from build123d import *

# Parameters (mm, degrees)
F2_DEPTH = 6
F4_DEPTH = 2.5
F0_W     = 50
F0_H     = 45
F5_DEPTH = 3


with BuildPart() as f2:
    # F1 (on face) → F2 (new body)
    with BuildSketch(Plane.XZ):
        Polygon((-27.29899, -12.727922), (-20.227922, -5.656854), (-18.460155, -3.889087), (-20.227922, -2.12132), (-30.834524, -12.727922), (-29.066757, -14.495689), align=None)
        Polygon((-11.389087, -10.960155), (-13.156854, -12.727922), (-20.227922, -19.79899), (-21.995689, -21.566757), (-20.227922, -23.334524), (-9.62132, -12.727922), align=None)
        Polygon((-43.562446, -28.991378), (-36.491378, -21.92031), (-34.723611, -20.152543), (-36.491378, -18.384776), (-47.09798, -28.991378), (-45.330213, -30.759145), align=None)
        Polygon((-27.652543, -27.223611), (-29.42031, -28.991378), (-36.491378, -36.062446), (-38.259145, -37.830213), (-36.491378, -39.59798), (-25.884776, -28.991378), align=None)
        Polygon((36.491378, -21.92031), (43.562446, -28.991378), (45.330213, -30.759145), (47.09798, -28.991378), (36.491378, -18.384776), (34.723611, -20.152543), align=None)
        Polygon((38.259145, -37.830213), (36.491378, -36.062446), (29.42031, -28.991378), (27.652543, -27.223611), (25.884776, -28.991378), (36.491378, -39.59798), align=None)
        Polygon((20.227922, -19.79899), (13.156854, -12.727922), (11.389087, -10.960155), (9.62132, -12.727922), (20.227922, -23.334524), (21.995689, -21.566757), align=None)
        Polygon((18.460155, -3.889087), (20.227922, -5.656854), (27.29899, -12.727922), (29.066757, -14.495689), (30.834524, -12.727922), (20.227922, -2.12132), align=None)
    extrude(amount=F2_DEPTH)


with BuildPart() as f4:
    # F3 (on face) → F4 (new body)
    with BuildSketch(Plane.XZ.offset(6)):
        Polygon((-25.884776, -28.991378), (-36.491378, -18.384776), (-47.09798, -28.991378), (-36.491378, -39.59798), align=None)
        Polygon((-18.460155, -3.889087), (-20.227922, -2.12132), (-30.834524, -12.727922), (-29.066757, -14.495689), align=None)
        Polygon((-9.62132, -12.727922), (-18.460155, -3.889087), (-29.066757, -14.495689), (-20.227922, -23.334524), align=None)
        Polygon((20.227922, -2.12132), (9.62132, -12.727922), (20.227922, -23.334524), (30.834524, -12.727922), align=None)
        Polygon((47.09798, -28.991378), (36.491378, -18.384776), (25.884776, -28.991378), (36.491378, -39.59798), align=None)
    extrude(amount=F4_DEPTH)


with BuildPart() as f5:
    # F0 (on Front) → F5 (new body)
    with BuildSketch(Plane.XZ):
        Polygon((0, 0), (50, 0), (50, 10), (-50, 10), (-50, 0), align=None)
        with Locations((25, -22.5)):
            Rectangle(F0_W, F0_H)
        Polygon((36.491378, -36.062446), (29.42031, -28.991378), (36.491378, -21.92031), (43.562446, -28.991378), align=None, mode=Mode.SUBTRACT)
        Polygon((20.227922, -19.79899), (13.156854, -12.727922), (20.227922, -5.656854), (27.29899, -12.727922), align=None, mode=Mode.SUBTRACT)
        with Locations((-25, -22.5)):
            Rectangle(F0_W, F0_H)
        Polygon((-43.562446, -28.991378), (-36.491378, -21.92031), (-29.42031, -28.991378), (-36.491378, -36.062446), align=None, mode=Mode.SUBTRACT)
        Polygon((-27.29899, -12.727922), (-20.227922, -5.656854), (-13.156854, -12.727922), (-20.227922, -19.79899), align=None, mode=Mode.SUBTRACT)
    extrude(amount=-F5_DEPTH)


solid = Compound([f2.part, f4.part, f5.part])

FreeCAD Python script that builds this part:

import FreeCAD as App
import Part
import Sketcher

doc = App.newDocument("Part")
params = doc.addObject("Spreadsheet::Sheet", "Params")
for row, (alias, value) in enumerate([
    ("sketch1_length", "15 mm"),
    ("sketch1_length2", "2.5 mm"),
    ("pad1_length", "6 mm"),
    ("sketch2_length", "15 mm"),
    ("pad2_length", "2.5 mm"),
    ("sketch3_width", "100 mm"),
    ("sketch3_height", "55 mm"),
    ("sketch3_length", "10 mm"),
    ("pad3_length", "3 mm"),
], start=1):
    params.set(f"A{row}", alias)
    params.set(f"B{row}", "=" + value)
    params.setAlias(f"B{row}", alias)

body = doc.addObject("PartDesign::Body", "Body")
body.AllowCompound = True

sketch1 = body.newObject("Sketcher::SketchObject", "Sketch")
sketch1.AttachmentSupport = (doc.getObject("XZ_Plane"), [""])
sketch1.MapMode = "FlatFace"
sketch1.addGeometry(Part.LineSegment(App.Vector(-18.5, -3.9, 0), App.Vector(-20.2, -2.1, 0)), False)
sketch1.addGeometry(Part.LineSegment(App.Vector(-20.2, -2.1, 0), App.Vector(-30.8, -12.7, 0)), False)
sketch1.addGeometry(Part.LineSegment(App.Vector(-30.8, -12.7, 0), App.Vector(-29.1, -14.5, 0)), False)
sketch1.addGeometry(Part.LineSegment(App.Vector(-29.1, -14.5, 0), App.Vector(-18.5, -3.9, 0)), False)
sketch1.addGeometry(Part.LineSegment(App.Vector(-11.4, -11, 0), App.Vector(-22, -21.6, 0)), False)
sketch1.addGeometry(Part.LineSegment(App.Vector(-22, -21.6, 0), App.Vector(-20.2, -23.3, 0)), False)
sketch1.addGeometry(Part.LineSegment(App.Vector(-20.2, -23.3, 0), App.Vector(-9.6, -12.7, 0)), False)
sketch1.addGeometry(Part.LineSegment(App.Vector(-9.6, -12.7, 0), App.Vector(-11.4, -11, 0)), False)
sketch1.addGeometry(Part.LineSegment(App.Vector(-34.7, -20.2, 0), App.Vector(-36.5, -18.4, 0)), False)
sketch1.addGeometry(Part.LineSegment(App.Vector(-36.5, -18.4, 0), App.Vector(-47.1, -29, 0)), False)
sketch1.addGeometry(Part.LineSegment(App.Vector(-47.1, -29, 0), App.Vector(-45.3, -30.8, 0)), False)
sketch1.addGeometry(Part.LineSegment(App.Vector(-45.3, -30.8, 0), App.Vector(-34.7, -20.2, 0)), False)
sketch1.addGeometry(Part.LineSegment(App.Vector(-27.7, -27.2, 0), App.Vector(-38.3, -37.8, 0)), False)
sketch1.addGeometry(Part.LineSegment(App.Vector(-38.3, -37.8, 0), App.Vector(-36.5, -39.6, 0)), False)
sketch1.addGeometry(Part.LineSegment(App.Vector(-36.5, -39.6, 0), App.Vector(-25.9, -29, 0)), False)
sketch1.addGeometry(Part.LineSegment(App.Vector(-25.9, -29, 0), App.Vector(-27.7, -27.2, 0)), False)
sketch1.addGeometry(Part.LineSegment(App.Vector(45.3, -30.8, 0), App.Vector(47.1, -29, 0)), False)
sketch1.addGeometry(Part.LineSegment(App.Vector(47.1, -29, 0), App.Vector(36.5, -18.4, 0)), False)
sketch1.addGeometry(Part.LineSegment(App.Vector(36.5, -18.4, 0), App.Vector(34.7, -20.2, 0)), False)
sketch1.addGeometry(Part.LineSegment(App.Vector(34.7, -20.2, 0), App.Vector(45.3, -30.8, 0)), False)
sketch1.addGeometry(Part.LineSegment(App.Vector(38.3, -37.8, 0), App.Vector(27.7, -27.2, 0)), False)
sketch1.addGeometry(Part.LineSegment(App.Vector(27.7, -27.2, 0), App.Vector(25.9, -29, 0)), False)
sketch1.addGeometry(Part.LineSegment(App.Vector(25.9, -29, 0), App.Vector(36.5, -39.6, 0)), False)
sketch1.addGeometry(Part.LineSegment(App.Vector(36.5, -39.6, 0), App.Vector(38.3, -37.8, 0)), False)
sketch1.addGeometry(Part.LineSegment(App.Vector(11.4, -11, 0), App.Vector(9.6, -12.7, 0)), False)
sketch1.addGeometry(Part.LineSegment(App.Vector(9.6, -12.7, 0), App.Vector(20.2, -23.3, 0)), False)
sketch1.addGeometry(Part.LineSegment(App.Vector(20.2, -23.3, 0), App.Vector(22, -21.6, 0)), False)
sketch1.addGeometry(Part.LineSegment(App.Vector(22, -21.6, 0), App.Vector(11.4, -11, 0)), False)
sketch1.addGeometry(Part.LineSegment(App.Vector(18.5, -3.9, 0), App.Vector(29.1, -14.5, 0)), False)
sketch1.addGeometry(Part.LineSegment(App.Vector(29.1, -14.5, 0), App.Vector(30.8, -12.7, 0)), False)
sketch1.addGeometry(Part.LineSegment(App.Vector(30.8, -12.7, 0), App.Vector(20.2, -2.1, 0)), False)
sketch1.addGeometry(Part.LineSegment(App.Vector(20.2, -2.1, 0), App.Vector(18.5, -3.9, 0)), False)
sketch1.addConstraint(Sketcher.Constraint("Coincident", 0, 2, 1, 1))
sketch1.addConstraint(Sketcher.Constraint("Coincident", 1, 2, 2, 1))
sketch1.addConstraint(Sketcher.Constraint("Coincident", 2, 2, 3, 1))
sketch1.addConstraint(Sketcher.Constraint("Coincident", 3, 2, 0, 1))
sketch1.addConstraint(Sketcher.Constraint("Coincident", 4, 2, 5, 1))
sketch1.addConstraint(Sketcher.Constraint("Coincident", 5, 2, 6, 1))
sketch1.addConstraint(Sketcher.Constraint("Coincident", 6, 2, 7, 1))
sketch1.addConstraint(Sketcher.Constraint("Coincident", 7, 2, 4, 1))
sketch1.addConstraint(Sketcher.Constraint("Coincident", 8, 2, 9, 1))
sketch1.addConstraint(Sketcher.Constraint("Coincident", 9, 2, 10, 1))
sketch1.addConstraint(Sketcher.Constraint("Coincident", 10, 2, 11, 1))
sketch1.addConstraint(Sketcher.Constraint("Coincident", 11, 2, 8, 1))
sketch1.addConstraint(Sketcher.Constraint("Coincident", 12, 2, 13, 1))
sketch1.addConstraint(Sketcher.Constraint("Coincident", 13, 2, 14, 1))
sketch1.addConstraint(Sketcher.Constraint("Coincident", 14, 2, 15, 1))
sketch1.addConstraint(Sketcher.Constraint("Coincident", 15, 2, 12, 1))
sketch1.addConstraint(Sketcher.Constraint("Coincident", 16, 2, 17, 1))
sketch1.addConstraint(Sketcher.Constraint("Coincident", 17, 2, 18, 1))
sketch1.addConstraint(Sketcher.Constraint("Coincident", 18, 2, 19, 1))
sketch1.addConstraint(Sketcher.Constraint("Coincident", 19, 2, 16, 1))
sketch1.addConstraint(Sketcher.Constraint("Coincident", 20, 2, 21, 1))
sketch1.addConstraint(Sketcher.Constraint("Coincident", 21, 2, 22, 1))
sketch1.addConstraint(Sketcher.Constraint("Coincident", 22, 2, 23, 1))
sketch1.addConstraint(Sketcher.Constraint("Coincident", 23, 2, 20, 1))
sketch1.addConstraint(Sketcher.Constraint("Coincident", 24, 2, 25, 1))
sketch1.addConstraint(Sketcher.Constraint("Coincident", 25, 2, 26, 1))
sketch1.addConstraint(Sketcher.Constraint("Coincident", 26, 2, 27, 1))
sketch1.addConstraint(Sketcher.Constraint("Coincident", 27, 2, 24, 1))
sketch1.addConstraint(Sketcher.Constraint("Coincident", 28, 2, 29, 1))
sketch1.addConstraint(Sketcher.Constraint("Coincident", 29, 2, 30, 1))
sketch1.addConstraint(Sketcher.Constraint("Coincident", 30, 2, 31, 1))
sketch1.addConstraint(Sketcher.Constraint("Coincident", 31, 2, 28, 1))
sketch1.addConstraint(Sketcher.Constraint("Symmetric", 9, 2, 16, 2, -2))
sketch1.addConstraint(Sketcher.Constraint("Symmetric", 8, 2, 17, 2, -2))
sketch1.addConstraint(Sketcher.Constraint("Symmetric", 11, 2, 18, 2, -2))
sketch1.addConstraint(Sketcher.Constraint("Symmetric", 10, 2, 19, 2, -2))
sketch1.addConstraint(Sketcher.Constraint("Symmetric", 15, 2, 20, 2, -2))
sketch1.addConstraint(Sketcher.Constraint("Symmetric", 14, 2, 21, 2, -2))
sketch1.addConstraint(Sketcher.Constraint("Symmetric", 13, 2, 22, 2, -2))
sketch1.addConstraint(Sketcher.Constraint("Symmetric", 12, 2, 23, 2, -2))
sketch1.addConstraint(Sketcher.Constraint("Symmetric", 6, 2, 24, 2, -2))
sketch1.addConstraint(Sketcher.Constraint("Symmetric", 5, 2, 25, 2, -2))
sketch1.addConstraint(Sketcher.Constraint("Symmetric", 4, 2, 26, 2, -2))
sketch1.addConstraint(Sketcher.Constraint("Symmetric", 7, 2, 27, 2, -2))
sketch1.addConstraint(Sketcher.Constraint("Symmetric", 2, 2, 28, 2, -2))
sketch1.addConstraint(Sketcher.Constraint("Symmetric", 1, 2, 29, 2, -2))
sketch1.addConstraint(Sketcher.Constraint("Symmetric", 0, 2, 30, 2, -2))
sketch1.addConstraint(Sketcher.Constraint("Symmetric", 3, 2, 31, 2, -2))
sketch1.addConstraint(Sketcher.Constraint("Perpendicular", 0, 1))
sketch1.addConstraint(Sketcher.Constraint("Perpendicular", 1, 2))
sketch1.addConstraint(Sketcher.Constraint("Perpendicular", 2, 3))
sketch1.addConstraint(Sketcher.Constraint("Parallel", 3, 4))
sketch1.addConstraint(Sketcher.Constraint("Perpendicular", 4, 5))
sketch1.addConstraint(Sketcher.Constraint("Perpendicular", 5, 6))
sketch1.addConstraint(Sketcher.Constraint("Perpendicular", 6, 7))
sketch1.addConstraint(Sketcher.Constraint("Parallel", 7, 8))
sketch1.addConstraint(Sketcher.Constraint("Perpendicular", 8, 9))
sketch1.addConstraint(Sketcher.Constraint("Perpendicular", 9, 10))
sketch1.addConstraint(Sketcher.Constraint("Perpendicular", 10, 11))
sketch1.addConstraint(Sketcher.Constraint("Parallel", 11, 12))
sketch1.addConstraint(Sketcher.Constraint("Perpendicular", 12, 13))
sketch1.addConstraint(Sketcher.Constraint("Perpendicular", 13, 14))
sketch1.addConstraint(Sketcher.Constraint("Perpendicular", 14, 15))
sketch1.addConstraint(Sketcher.Constraint("Perpendicular", 15, 16))
sketch1.addConstraint(Sketcher.Constraint("Horizontal", 1, 2, 6, 2))
sketch1.addConstraint(Sketcher.Constraint("Horizontal", 9, 2, 14, 2))
sketch1.addConstraint(Sketcher.Constraint("Vertical", 0, 2, 5, 2))
sketch1.addConstraint(Sketcher.Constraint("Vertical", 8, 2, 13, 2))
sketch1.addConstraint(Sketcher.Constraint("Equal", 3, 4))
sketch1.addConstraint(Sketcher.Constraint("Equal", 2, 5))
sketch1.addConstraint(Sketcher.Constraint("Equal", 7, 8))
sketch1.addConstraint(Sketcher.Constraint("Equal", 6, 9))
sketch1.addConstraint(Sketcher.Constraint("Equal", 11, 12))
sketch1.addConstraint(Sketcher.Constraint("Equal", 10, 13))
sketch1.addConstraint(Sketcher.Constraint("Distance", 1, 15.0))
sketch1.addConstraint(Sketcher.Constraint("Distance", 0, 2.5))
sketch1.addConstraint(Sketcher.Constraint("DistanceX", 6, 2, 16, 2, 56.7193))
sketch1.addConstraint(Sketcher.Constraint("DistanceX", 0, 2, -1, 1, 20.227922))
sketch1.addConstraint(Sketcher.Constraint("DistanceY", 0, 2, -1, 1, 2.12132))
sketch1.addConstraint(Sketcher.Constraint("DistanceY", 9, 2, -1, 1, 28.991378))
sketch1.setExpression("Constraints[74]", "Params.sketch1_length")
sketch1.setExpression("Constraints[75]", "Params.sketch1_length2")
pad1 = body.newObject("PartDesign::Pad", "Pad")
pad1.Profile = sketch1
pad1.setExpression("Length", "Params.pad1_length")
body2 = doc.addObject("PartDesign::Body", "Body001")
body2.AllowCompound = True

sketch2 = body2.newObject("Sketcher::SketchObject", "Sketch001")
sketch2.AttachmentSupport = (doc.getObject("XZ_Plane001"), [""])
sketch2.MapMode = "FlatFace"
sketch2.AttachmentOffset = App.Placement(App.Vector(0, 0, 6), App.Rotation())
sketch2.addGeometry(Part.LineSegment(App.Vector(-26, -29, 0), App.Vector(-36, -18, 0)), False)
sketch2.addGeometry(Part.LineSegment(App.Vector(-36, -18, 0), App.Vector(-47, -29, 0)), False)
sketch2.addGeometry(Part.LineSegment(App.Vector(-47, -29, 0), App.Vector(-36, -40, 0)), False)
sketch2.addGeometry(Part.LineSegment(App.Vector(-36, -40, 0), App.Vector(-26, -29, 0)), False)
sketch2.addGeometry(Part.LineSegment(App.Vector(-20, -2, 0), App.Vector(-31, -13, 0)), False)
sketch2.addGeometry(Part.LineSegment(App.Vector(-31, -13, 0), App.Vector(-20, -23, 0)), False)
sketch2.addGeometry(Part.LineSegment(App.Vector(-20, -23, 0), App.Vector(-10, -13, 0)), False)
sketch2.addGeometry(Part.LineSegment(App.Vector(-10, -13, 0), App.Vector(-20, -2, 0)), False)
sketch2.addGeometry(Part.LineSegment(App.Vector(20, -2, 0), App.Vector(10, -13, 0)), False)
sketch2.addGeometry(Part.LineSegment(App.Vector(10, -13, 0), App.Vector(20, -23, 0)), False)
sketch2.addGeometry(Part.LineSegment(App.Vector(20, -23, 0), App.Vector(31, -13, 0)), False)
sketch2.addGeometry(Part.LineSegment(App.Vector(31, -13, 0), App.Vector(20, -2, 0)), False)
sketch2.addGeometry(Part.LineSegment(App.Vector(47, -29, 0), App.Vector(36, -18, 0)), False)
sketch2.addGeometry(Part.LineSegment(App.Vector(36, -18, 0), App.Vector(26, -29, 0)), False)
sketch2.addGeometry(Part.LineSegment(App.Vector(26, -29, 0), App.Vector(36, -40, 0)), False)
sketch2.addGeometry(Part.LineSegment(App.Vector(36, -40, 0), App.Vector(47, -29, 0)), False)
sketch2.addConstraint(Sketcher.Constraint("Coincident", 0, 2, 1, 1))
sketch2.addConstraint(Sketcher.Constraint("Coincident", 1, 2, 2, 1))
sketch2.addConstraint(Sketcher.Constraint("Coincident", 2, 2, 3, 1))
sketch2.addConstraint(Sketcher.Constraint("Coincident", 3, 2, 0, 1))
sketch2.addConstraint(Sketcher.Constraint("Coincident", 4, 2, 5, 1))
sketch2.addConstraint(Sketcher.Constraint("Coincident", 5, 2, 6, 1))
sketch2.addConstraint(Sketcher.Constraint("Coincident", 6, 2, 7, 1))
sketch2.addConstraint(Sketcher.Constraint("Coincident", 7, 2, 4, 1))
sketch2.addConstraint(Sketcher.Constraint("Coincident", 8, 2, 9, 1))
sketch2.addConstraint(Sketcher.Constraint("Coincident", 9, 2, 10, 1))
sketch2.addConstraint(Sketcher.Constraint("Coincident", 10, 2, 11, 1))
sketch2.addConstraint(Sketcher.Constraint("Coincident", 11, 2, 8, 1))
sketch2.addConstraint(Sketcher.Constraint("Coincident", 12, 2, 13, 1))
sketch2.addConstraint(Sketcher.Constraint("Coincident", 13, 2, 14, 1))
sketch2.addConstraint(Sketcher.Constraint("Coincident", 14, 2, 15, 1))
sketch2.addConstraint(Sketcher.Constraint("Coincident", 15, 2, 12, 1))
sketch2.addConstraint(Sketcher.Constraint("Symmetric", 6, 2, 8, 2, -2))
sketch2.addConstraint(Sketcher.Constraint("Symmetric", 5, 2, 9, 2, -2))
sketch2.addConstraint(Sketcher.Constraint("Symmetric", 4, 2, 10, 2, -2))
sketch2.addConstraint(Sketcher.Constraint("Symmetric", 7, 2, 11, 2, -2))
sketch2.addConstraint(Sketcher.Constraint("Symmetric", 0, 2, 12, 2, -2))
sketch2.addConstraint(Sketcher.Constraint("Symmetric", 3, 2, 13, 2, -2))
sketch2.addConstraint(Sketcher.Constraint("Symmetric", 2, 2, 14, 2, -2))
sketch2.addConstraint(Sketcher.Constraint("Symmetric", 1, 2, 15, 2, -2))
sketch2.addConstraint(Sketcher.Constraint("Perpendicular", 0, 1))
sketch2.addConstraint(Sketcher.Constraint("Perpendicular", 1, 2))
sketch2.addConstraint(Sketcher.Constraint("Perpendicular", 2, 3))
sketch2.addConstraint(Sketcher.Constraint("Parallel", 3, 4))
sketch2.addConstraint(Sketcher.Constraint("Perpendicular", 4, 5))
sketch2.addConstraint(Sketcher.Constraint("Perpendicular", 5, 6))
sketch2.addConstraint(Sketcher.Constraint("Perpendicular", 6, 7))
sketch2.addConstraint(Sketcher.Constraint("Perpendicular", 7, 8))
sketch2.addConstraint(Sketcher.Constraint("Horizontal", 1, 2, 3, 2))
sketch2.addConstraint(Sketcher.Constraint("Horizontal", 4, 2, 6, 2))
sketch2.addConstraint(Sketcher.Constraint("Equal", 3, 4))
sketch2.addConstraint(Sketcher.Constraint("Distance", 0, 15.0))
sketch2.addConstraint(Sketcher.Constraint("DistanceX", 1, 2, -1, 1, 47.09798))
sketch2.addConstraint(Sketcher.Constraint("DistanceY", 1, 2, -1, 1, 28.991378))
sketch2.addConstraint(Sketcher.Constraint("DistanceX", 5, 2, -1, 1, 20.227922))
sketch2.addConstraint(Sketcher.Constraint("DistanceY", 7, 2, -1, 1, 2.12132))
sketch2.setExpression("Constraints[35]", "Params.sketch2_length")
pad2 = body2.newObject("PartDesign::Pad", "Pad001")
pad2.Profile = sketch2
pad2.setExpression("Length", "Params.pad2_length")
body3 = doc.addObject("PartDesign::Body", "Body002")

sketch3 = body3.newObject("Sketcher::SketchObject", "Sketch002")
sketch3.AttachmentSupport = (doc.getObject("XZ_Plane002"), [""])
sketch3.MapMode = "FlatFace"
sketch3.addGeometry(Part.LineSegment(App.Vector(50, 10, 0), App.Vector(-50, 10, 0)), False)
sketch3.addGeometry(Part.LineSegment(App.Vector(-50, 10, 0), App.Vector(-50, -45, 0)), False)
sketch3.addGeometry(Part.LineSegment(App.Vector(-50, -45, 0), App.Vector(50, -45, 0)), False)
sketch3.addGeometry(Part.LineSegment(App.Vector(50, -45, 0), App.Vector(50, 10, 0)), False)
sketch3.addGeometry(Part.LineSegment(App.Vector(-36, -36, 0), App.Vector(-44, -29, 0)), False)
sketch3.addGeometry(Part.LineSegment(App.Vector(-44, -29, 0), App.Vector(-36, -22, 0)), False)
sketch3.addGeometry(Part.LineSegment(App.Vector(-36, -22, 0), App.Vector(-29, -29, 0)), False)
sketch3.addGeometry(Part.LineSegment(App.Vector(-29, -29, 0), App.Vector(-36, -36, 0)), False)
sketch3.addGeometry(Part.LineSegment(App.Vector(44, -29, 0), App.Vector(36, -36, 0)), False)
sketch3.addGeometry(Part.LineSegment(App.Vector(36, -36, 0), App.Vector(29, -29, 0)), False)
sketch3.addGeometry(Part.LineSegment(App.Vector(29, -29, 0), App.Vector(36, -22, 0)), False)
sketch3.addGeometry(Part.LineSegment(App.Vector(36, -22, 0), App.Vector(44, -29, 0)), False)
sketch3.addGeometry(Part.LineSegment(App.Vector(-20, -20, 0), App.Vector(-27, -13, 0)), False)
sketch3.addGeometry(Part.LineSegment(App.Vector(-27, -13, 0), App.Vector(-20, -6, 0)), False)
sketch3.addGeometry(Part.LineSegment(App.Vector(-20, -6, 0), App.Vector(-13, -13, 0)), False)
sketch3.addGeometry(Part.LineSegment(App.Vector(-13, -13, 0), App.Vector(-20, -20, 0)), False)
sketch3.addGeometry(Part.LineSegment(App.Vector(27, -13, 0), App.Vector(20, -20, 0)), False)
sketch3.addGeometry(Part.LineSegment(App.Vector(20, -20, 0), App.Vector(13, -13, 0)), False)
sketch3.addGeometry(Part.LineSegment(App.Vector(13, -13, 0), App.Vector(20, -6, 0)), False)
sketch3.addGeometry(Part.LineSegment(App.Vector(20, -6, 0), App.Vector(27, -13, 0)), False)
sketch3.addConstraint(Sketcher.Constraint("Coincident", 0, 2, 1, 1))
sketch3.addConstraint(Sketcher.Constraint("Coincident", 1, 2, 2, 1))
sketch3.addConstraint(Sketcher.Constraint("Coincident", 2, 2, 3, 1))
sketch3.addConstraint(Sketcher.Constraint("Coincident", 3, 2, 0, 1))
sketch3.addConstraint(Sketcher.Constraint("Coincident", 4, 2, 5, 1))
sketch3.addConstraint(Sketcher.Constraint("Coincident", 5, 2, 6, 1))
sketch3.addConstraint(Sketcher.Constraint("Coincident", 6, 2, 7, 1))
sketch3.addConstraint(Sketcher.Constraint("Coincident", 7, 2, 4, 1))
sketch3.addConstraint(Sketcher.Constraint("Coincident", 8, 2, 9, 1))
sketch3.addConstraint(Sketcher.Constraint("Coincident", 9, 2, 10, 1))
sketch3.addConstraint(Sketcher.Constraint("Coincident", 10, 2, 11, 1))
sketch3.addConstraint(Sketcher.Constraint("Coincident", 11, 2, 8, 1))
sketch3.addConstraint(Sketcher.Constraint("Coincident", 12, 2, 13, 1))
sketch3.addConstraint(Sketcher.Constraint("Coincident", 13, 2, 14, 1))
sketch3.addConstraint(Sketcher.Constraint("Coincident", 14, 2, 15, 1))
sketch3.addConstraint(Sketcher.Constraint("Coincident", 15, 2, 12, 1))
sketch3.addConstraint(Sketcher.Constraint("Coincident", 16, 2, 17, 1))
sketch3.addConstraint(Sketcher.Constraint("Coincident", 17, 2, 18, 1))
sketch3.addConstraint(Sketcher.Constraint("Coincident", 18, 2, 19, 1))
sketch3.addConstraint(Sketcher.Constraint("Coincident", 19, 2, 16, 1))
sketch3.addConstraint(Sketcher.Constraint("Horizontal", 0))
sketch3.addConstraint(Sketcher.Constraint("Vertical", 1))
sketch3.addConstraint(Sketcher.Constraint("Horizontal", 2))
sketch3.addConstraint(Sketcher.Constraint("Vertical", 3))
sketch3.addConstraint(Sketcher.Constraint("Symmetric", 7, 2, 8, 2, -2))
sketch3.addConstraint(Sketcher.Constraint("Symmetric", 6, 2, 9, 2, -2))
sketch3.addConstraint(Sketcher.Constraint("Symmetric", 5, 2, 10, 2, -2))
sketch3.addConstraint(Sketcher.Constraint("Symmetric", 4, 2, 11, 2, -2))
sketch3.addConstraint(Sketcher.Constraint("Symmetric", 15, 2, 16, 2, -2))
sketch3.addConstraint(Sketcher.Constraint("Symmetric", 14, 2, 17, 2, -2))
sketch3.addConstraint(Sketcher.Constraint("Symmetric", 13, 2, 18, 2, -2))
sketch3.addConstraint(Sketcher.Constraint("Symmetric", 12, 2, 19, 2, -2))
sketch3.addConstraint(Sketcher.Constraint("Perpendicular", 4, 5))
sketch3.addConstraint(Sketcher.Constraint("Perpendicular", 5, 6))
sketch3.addConstraint(Sketcher.Constraint("Perpendicular", 6, 7))
sketch3.addConstraint(Sketcher.Constraint("Parallel", 7, 8))
sketch3.addConstraint(Sketcher.Constraint("Parallel", 11, 12))
sketch3.addConstraint(Sketcher.Constraint("Perpendicular", 12, 13))
sketch3.addConstraint(Sketcher.Constraint("Perpendicular", 13, 14))
sketch3.addConstraint(Sketcher.Constraint("Perpendicular", 14, 15))
sketch3.addConstraint(Sketcher.Constraint("Horizontal", 4, 2, 6, 2))
sketch3.addConstraint(Sketcher.Constraint("Horizontal", 12, 2, 14, 2))
sketch3.addConstraint(Sketcher.Constraint("Equal", 11, 12))
sketch3.addConstraint(Sketcher.Constraint("DistanceX", 0, 2, 0, 1, 100.0))
sketch3.addConstraint(Sketcher.Constraint("DistanceY", 1, 2, 1, 1, 55.0))
sketch3.addConstraint(Sketcher.Constraint("Distance", 4, 10.0))
sketch3.addConstraint(Sketcher.Constraint("DistanceX", 0, 2, -1, 1, 50.0))
sketch3.addConstraint(Sketcher.Constraint("DistanceY", -1, 1, 0, 2, 10.0))
sketch3.addConstraint(Sketcher.Constraint("DistanceY", 4, 2, -1, 1, 28.991378))
sketch3.addConstraint(Sketcher.Constraint("DistanceX", 6, 2, -1, 1, 29.42031))
sketch3.addConstraint(Sketcher.Constraint("DistanceX", 12, 2, -1, 1, 27.29899))
sketch3.addConstraint(Sketcher.Constraint("DistanceY", 15, 2, -1, 1, 19.79899))
sketch3.setExpression("Constraints[43]", "Params.sketch3_width")
sketch3.setExpression("Constraints[44]", "Params.sketch3_height")
sketch3.setExpression("Constraints[45]", "Params.sketch3_length")
pad3 = body3.newObject("PartDesign::Pad", "Pad002")
pad3.Profile = sketch3
pad3.setExpression("Length", "Params.pad3_length")
pad3.Reversed = True

doc.recompute()
